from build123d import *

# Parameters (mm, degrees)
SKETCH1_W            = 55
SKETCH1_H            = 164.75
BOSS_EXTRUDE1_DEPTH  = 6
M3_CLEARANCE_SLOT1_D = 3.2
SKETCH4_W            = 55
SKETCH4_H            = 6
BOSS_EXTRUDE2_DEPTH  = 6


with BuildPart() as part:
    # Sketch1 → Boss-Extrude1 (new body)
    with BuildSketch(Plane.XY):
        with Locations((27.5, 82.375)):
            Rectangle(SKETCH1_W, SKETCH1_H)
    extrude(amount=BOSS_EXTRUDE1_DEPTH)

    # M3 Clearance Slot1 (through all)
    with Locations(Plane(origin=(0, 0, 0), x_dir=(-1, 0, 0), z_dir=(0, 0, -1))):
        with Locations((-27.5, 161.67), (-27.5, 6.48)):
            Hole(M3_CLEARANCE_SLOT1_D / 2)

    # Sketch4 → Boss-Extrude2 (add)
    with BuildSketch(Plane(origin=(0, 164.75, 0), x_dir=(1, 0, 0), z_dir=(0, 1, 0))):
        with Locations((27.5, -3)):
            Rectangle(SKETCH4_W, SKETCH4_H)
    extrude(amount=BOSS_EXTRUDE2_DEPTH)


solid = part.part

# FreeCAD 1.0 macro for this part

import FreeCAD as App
import Part
import Sketcher
Q = App.Units.Quantity


def add_polygon(sketch, points):
    """Adds a closed chain of lines whose ends are joined by coincident constraints."""
    first, n = sketch.GeometryCount, len(points)
    for a, b in zip(points, points[1:] + points[:1]):
        sketch.addGeometry(Part.LineSegment(App.Vector(*a, 0), App.Vector(*b, 0)), False)
    for i in range(n):
        sketch.addConstraint(Sketcher.Constraint("Coincident", first + i, 2, first + (i + 1) % n, 1))

doc = App.newDocument("Part")
body = doc.addObject("PartDesign::Body", "Body")

# Sketch on XY plane
sketch1 = body.newObject("Sketcher::SketchObject", "Sketch")
sketch1.AttachmentSupport = (doc.getObject("XY_Plane"), [""])
sketch1.MapMode = "FlatFace"
add_polygon(sketch1, [(0, 165), (0, 0), (55, 0), (55, 165)])  # lines 0-3
sketch1.addConstraint([
    Sketcher.Constraint("Vertical", 0),
    Sketcher.Constraint("Horizontal", 1),
    Sketcher.Constraint("Vertical", 2),
    Sketcher.Constraint("Horizontal", 3),
    Sketcher.Constraint("Coincident", 0, 2, -1, 1),
    Sketcher.Constraint("DistanceX", 1, 1, 1, 2, Q("55 mm")),
    Sketcher.Constraint("DistanceY", 0, 2, 0, 1, Q("164.75 mm")),
])
pad1 = body.newObject("PartDesign::Pad", "Pad")
pad1.Profile = sketch1
pad1.Length = 6

# Sketch on XY plane
sketch2 = body.newObject("Sketcher::SketchObject", "Sketch001")
sketch2.AttachmentSupport = (doc.getObject("XY_Plane"), [""])
sketch2.MapMode = "FlatFace"
sketch2.addGeometry([
    Part.Circle(App.Vector(27.5, 161.7, 0), App.Vector(0, 0, 1), 1.6),
    Part.Circle(App.Vector(27.5, 6.5, 0), App.Vector(0, 0, 1), 1.6),
], False)
sketch2.addConstraint([
    Sketcher.Constraint("Equal", 0, 1),
    Sketcher.Constraint("Vertical", 0, 3, 1, 3),
    Sketcher.Constraint("Diameter", 0, Q("3.2 mm")),
    Sketcher.Constraint("DistanceX", -1, 1, 0, 3, Q("27.5 mm")),
    Sketcher.Constraint("DistanceY", -1, 1, 0, 3, Q("161.67 mm")),
    Sketcher.Constraint("DistanceY", -1, 1, 1, 3, Q("6.48 mm")),
])
doc.recompute()
hole = body.newObject("PartDesign::Hole", "Hole")
hole.Profile = sketch2
hole.ThreadType = "None"
hole.Diameter = 3.2
hole.DepthType = "ThroughAll"
hole.Reversed = True

# Sketch on XZ plane
sketch3 = body.newObject("Sketcher::SketchObject", "Sketch002")
sketch3.AttachmentSupport = (doc.getObject("XZ_Plane"), [""])
sketch3.MapMode = "FlatFace"
sketch3.AttachmentOffset = App.Placement(App.Vector(0, 0, -164.75), App.Rotation())
add_polygon(sketch3, [(0, 0), (0, 6), (55, 6), (55, 0)])  # lines 0-3
sketch3.addConstraint([
    Sketcher.Constraint("Vertical", 0),
    Sketcher.Constraint("Horizontal", 1),
    Sketcher.Constraint("Vertical", 2),
    Sketcher.Constraint("Horizontal", 3),
    Sketcher.Constraint("Coincident", 3, 2, -1, 1),
    Sketcher.Constraint("DistanceX", 1, 1, 1, 2, Q("55 mm")),
    Sketcher.Constraint("DistanceY", 0, 1, 0, 2, Q("6 mm")),
])
pad2 = body.newObject("PartDesign::Pad", "Pad001")
pad2.Profile = sketch3
pad2.Length = 6
pad2.Reversed = True

doc.recompute()
